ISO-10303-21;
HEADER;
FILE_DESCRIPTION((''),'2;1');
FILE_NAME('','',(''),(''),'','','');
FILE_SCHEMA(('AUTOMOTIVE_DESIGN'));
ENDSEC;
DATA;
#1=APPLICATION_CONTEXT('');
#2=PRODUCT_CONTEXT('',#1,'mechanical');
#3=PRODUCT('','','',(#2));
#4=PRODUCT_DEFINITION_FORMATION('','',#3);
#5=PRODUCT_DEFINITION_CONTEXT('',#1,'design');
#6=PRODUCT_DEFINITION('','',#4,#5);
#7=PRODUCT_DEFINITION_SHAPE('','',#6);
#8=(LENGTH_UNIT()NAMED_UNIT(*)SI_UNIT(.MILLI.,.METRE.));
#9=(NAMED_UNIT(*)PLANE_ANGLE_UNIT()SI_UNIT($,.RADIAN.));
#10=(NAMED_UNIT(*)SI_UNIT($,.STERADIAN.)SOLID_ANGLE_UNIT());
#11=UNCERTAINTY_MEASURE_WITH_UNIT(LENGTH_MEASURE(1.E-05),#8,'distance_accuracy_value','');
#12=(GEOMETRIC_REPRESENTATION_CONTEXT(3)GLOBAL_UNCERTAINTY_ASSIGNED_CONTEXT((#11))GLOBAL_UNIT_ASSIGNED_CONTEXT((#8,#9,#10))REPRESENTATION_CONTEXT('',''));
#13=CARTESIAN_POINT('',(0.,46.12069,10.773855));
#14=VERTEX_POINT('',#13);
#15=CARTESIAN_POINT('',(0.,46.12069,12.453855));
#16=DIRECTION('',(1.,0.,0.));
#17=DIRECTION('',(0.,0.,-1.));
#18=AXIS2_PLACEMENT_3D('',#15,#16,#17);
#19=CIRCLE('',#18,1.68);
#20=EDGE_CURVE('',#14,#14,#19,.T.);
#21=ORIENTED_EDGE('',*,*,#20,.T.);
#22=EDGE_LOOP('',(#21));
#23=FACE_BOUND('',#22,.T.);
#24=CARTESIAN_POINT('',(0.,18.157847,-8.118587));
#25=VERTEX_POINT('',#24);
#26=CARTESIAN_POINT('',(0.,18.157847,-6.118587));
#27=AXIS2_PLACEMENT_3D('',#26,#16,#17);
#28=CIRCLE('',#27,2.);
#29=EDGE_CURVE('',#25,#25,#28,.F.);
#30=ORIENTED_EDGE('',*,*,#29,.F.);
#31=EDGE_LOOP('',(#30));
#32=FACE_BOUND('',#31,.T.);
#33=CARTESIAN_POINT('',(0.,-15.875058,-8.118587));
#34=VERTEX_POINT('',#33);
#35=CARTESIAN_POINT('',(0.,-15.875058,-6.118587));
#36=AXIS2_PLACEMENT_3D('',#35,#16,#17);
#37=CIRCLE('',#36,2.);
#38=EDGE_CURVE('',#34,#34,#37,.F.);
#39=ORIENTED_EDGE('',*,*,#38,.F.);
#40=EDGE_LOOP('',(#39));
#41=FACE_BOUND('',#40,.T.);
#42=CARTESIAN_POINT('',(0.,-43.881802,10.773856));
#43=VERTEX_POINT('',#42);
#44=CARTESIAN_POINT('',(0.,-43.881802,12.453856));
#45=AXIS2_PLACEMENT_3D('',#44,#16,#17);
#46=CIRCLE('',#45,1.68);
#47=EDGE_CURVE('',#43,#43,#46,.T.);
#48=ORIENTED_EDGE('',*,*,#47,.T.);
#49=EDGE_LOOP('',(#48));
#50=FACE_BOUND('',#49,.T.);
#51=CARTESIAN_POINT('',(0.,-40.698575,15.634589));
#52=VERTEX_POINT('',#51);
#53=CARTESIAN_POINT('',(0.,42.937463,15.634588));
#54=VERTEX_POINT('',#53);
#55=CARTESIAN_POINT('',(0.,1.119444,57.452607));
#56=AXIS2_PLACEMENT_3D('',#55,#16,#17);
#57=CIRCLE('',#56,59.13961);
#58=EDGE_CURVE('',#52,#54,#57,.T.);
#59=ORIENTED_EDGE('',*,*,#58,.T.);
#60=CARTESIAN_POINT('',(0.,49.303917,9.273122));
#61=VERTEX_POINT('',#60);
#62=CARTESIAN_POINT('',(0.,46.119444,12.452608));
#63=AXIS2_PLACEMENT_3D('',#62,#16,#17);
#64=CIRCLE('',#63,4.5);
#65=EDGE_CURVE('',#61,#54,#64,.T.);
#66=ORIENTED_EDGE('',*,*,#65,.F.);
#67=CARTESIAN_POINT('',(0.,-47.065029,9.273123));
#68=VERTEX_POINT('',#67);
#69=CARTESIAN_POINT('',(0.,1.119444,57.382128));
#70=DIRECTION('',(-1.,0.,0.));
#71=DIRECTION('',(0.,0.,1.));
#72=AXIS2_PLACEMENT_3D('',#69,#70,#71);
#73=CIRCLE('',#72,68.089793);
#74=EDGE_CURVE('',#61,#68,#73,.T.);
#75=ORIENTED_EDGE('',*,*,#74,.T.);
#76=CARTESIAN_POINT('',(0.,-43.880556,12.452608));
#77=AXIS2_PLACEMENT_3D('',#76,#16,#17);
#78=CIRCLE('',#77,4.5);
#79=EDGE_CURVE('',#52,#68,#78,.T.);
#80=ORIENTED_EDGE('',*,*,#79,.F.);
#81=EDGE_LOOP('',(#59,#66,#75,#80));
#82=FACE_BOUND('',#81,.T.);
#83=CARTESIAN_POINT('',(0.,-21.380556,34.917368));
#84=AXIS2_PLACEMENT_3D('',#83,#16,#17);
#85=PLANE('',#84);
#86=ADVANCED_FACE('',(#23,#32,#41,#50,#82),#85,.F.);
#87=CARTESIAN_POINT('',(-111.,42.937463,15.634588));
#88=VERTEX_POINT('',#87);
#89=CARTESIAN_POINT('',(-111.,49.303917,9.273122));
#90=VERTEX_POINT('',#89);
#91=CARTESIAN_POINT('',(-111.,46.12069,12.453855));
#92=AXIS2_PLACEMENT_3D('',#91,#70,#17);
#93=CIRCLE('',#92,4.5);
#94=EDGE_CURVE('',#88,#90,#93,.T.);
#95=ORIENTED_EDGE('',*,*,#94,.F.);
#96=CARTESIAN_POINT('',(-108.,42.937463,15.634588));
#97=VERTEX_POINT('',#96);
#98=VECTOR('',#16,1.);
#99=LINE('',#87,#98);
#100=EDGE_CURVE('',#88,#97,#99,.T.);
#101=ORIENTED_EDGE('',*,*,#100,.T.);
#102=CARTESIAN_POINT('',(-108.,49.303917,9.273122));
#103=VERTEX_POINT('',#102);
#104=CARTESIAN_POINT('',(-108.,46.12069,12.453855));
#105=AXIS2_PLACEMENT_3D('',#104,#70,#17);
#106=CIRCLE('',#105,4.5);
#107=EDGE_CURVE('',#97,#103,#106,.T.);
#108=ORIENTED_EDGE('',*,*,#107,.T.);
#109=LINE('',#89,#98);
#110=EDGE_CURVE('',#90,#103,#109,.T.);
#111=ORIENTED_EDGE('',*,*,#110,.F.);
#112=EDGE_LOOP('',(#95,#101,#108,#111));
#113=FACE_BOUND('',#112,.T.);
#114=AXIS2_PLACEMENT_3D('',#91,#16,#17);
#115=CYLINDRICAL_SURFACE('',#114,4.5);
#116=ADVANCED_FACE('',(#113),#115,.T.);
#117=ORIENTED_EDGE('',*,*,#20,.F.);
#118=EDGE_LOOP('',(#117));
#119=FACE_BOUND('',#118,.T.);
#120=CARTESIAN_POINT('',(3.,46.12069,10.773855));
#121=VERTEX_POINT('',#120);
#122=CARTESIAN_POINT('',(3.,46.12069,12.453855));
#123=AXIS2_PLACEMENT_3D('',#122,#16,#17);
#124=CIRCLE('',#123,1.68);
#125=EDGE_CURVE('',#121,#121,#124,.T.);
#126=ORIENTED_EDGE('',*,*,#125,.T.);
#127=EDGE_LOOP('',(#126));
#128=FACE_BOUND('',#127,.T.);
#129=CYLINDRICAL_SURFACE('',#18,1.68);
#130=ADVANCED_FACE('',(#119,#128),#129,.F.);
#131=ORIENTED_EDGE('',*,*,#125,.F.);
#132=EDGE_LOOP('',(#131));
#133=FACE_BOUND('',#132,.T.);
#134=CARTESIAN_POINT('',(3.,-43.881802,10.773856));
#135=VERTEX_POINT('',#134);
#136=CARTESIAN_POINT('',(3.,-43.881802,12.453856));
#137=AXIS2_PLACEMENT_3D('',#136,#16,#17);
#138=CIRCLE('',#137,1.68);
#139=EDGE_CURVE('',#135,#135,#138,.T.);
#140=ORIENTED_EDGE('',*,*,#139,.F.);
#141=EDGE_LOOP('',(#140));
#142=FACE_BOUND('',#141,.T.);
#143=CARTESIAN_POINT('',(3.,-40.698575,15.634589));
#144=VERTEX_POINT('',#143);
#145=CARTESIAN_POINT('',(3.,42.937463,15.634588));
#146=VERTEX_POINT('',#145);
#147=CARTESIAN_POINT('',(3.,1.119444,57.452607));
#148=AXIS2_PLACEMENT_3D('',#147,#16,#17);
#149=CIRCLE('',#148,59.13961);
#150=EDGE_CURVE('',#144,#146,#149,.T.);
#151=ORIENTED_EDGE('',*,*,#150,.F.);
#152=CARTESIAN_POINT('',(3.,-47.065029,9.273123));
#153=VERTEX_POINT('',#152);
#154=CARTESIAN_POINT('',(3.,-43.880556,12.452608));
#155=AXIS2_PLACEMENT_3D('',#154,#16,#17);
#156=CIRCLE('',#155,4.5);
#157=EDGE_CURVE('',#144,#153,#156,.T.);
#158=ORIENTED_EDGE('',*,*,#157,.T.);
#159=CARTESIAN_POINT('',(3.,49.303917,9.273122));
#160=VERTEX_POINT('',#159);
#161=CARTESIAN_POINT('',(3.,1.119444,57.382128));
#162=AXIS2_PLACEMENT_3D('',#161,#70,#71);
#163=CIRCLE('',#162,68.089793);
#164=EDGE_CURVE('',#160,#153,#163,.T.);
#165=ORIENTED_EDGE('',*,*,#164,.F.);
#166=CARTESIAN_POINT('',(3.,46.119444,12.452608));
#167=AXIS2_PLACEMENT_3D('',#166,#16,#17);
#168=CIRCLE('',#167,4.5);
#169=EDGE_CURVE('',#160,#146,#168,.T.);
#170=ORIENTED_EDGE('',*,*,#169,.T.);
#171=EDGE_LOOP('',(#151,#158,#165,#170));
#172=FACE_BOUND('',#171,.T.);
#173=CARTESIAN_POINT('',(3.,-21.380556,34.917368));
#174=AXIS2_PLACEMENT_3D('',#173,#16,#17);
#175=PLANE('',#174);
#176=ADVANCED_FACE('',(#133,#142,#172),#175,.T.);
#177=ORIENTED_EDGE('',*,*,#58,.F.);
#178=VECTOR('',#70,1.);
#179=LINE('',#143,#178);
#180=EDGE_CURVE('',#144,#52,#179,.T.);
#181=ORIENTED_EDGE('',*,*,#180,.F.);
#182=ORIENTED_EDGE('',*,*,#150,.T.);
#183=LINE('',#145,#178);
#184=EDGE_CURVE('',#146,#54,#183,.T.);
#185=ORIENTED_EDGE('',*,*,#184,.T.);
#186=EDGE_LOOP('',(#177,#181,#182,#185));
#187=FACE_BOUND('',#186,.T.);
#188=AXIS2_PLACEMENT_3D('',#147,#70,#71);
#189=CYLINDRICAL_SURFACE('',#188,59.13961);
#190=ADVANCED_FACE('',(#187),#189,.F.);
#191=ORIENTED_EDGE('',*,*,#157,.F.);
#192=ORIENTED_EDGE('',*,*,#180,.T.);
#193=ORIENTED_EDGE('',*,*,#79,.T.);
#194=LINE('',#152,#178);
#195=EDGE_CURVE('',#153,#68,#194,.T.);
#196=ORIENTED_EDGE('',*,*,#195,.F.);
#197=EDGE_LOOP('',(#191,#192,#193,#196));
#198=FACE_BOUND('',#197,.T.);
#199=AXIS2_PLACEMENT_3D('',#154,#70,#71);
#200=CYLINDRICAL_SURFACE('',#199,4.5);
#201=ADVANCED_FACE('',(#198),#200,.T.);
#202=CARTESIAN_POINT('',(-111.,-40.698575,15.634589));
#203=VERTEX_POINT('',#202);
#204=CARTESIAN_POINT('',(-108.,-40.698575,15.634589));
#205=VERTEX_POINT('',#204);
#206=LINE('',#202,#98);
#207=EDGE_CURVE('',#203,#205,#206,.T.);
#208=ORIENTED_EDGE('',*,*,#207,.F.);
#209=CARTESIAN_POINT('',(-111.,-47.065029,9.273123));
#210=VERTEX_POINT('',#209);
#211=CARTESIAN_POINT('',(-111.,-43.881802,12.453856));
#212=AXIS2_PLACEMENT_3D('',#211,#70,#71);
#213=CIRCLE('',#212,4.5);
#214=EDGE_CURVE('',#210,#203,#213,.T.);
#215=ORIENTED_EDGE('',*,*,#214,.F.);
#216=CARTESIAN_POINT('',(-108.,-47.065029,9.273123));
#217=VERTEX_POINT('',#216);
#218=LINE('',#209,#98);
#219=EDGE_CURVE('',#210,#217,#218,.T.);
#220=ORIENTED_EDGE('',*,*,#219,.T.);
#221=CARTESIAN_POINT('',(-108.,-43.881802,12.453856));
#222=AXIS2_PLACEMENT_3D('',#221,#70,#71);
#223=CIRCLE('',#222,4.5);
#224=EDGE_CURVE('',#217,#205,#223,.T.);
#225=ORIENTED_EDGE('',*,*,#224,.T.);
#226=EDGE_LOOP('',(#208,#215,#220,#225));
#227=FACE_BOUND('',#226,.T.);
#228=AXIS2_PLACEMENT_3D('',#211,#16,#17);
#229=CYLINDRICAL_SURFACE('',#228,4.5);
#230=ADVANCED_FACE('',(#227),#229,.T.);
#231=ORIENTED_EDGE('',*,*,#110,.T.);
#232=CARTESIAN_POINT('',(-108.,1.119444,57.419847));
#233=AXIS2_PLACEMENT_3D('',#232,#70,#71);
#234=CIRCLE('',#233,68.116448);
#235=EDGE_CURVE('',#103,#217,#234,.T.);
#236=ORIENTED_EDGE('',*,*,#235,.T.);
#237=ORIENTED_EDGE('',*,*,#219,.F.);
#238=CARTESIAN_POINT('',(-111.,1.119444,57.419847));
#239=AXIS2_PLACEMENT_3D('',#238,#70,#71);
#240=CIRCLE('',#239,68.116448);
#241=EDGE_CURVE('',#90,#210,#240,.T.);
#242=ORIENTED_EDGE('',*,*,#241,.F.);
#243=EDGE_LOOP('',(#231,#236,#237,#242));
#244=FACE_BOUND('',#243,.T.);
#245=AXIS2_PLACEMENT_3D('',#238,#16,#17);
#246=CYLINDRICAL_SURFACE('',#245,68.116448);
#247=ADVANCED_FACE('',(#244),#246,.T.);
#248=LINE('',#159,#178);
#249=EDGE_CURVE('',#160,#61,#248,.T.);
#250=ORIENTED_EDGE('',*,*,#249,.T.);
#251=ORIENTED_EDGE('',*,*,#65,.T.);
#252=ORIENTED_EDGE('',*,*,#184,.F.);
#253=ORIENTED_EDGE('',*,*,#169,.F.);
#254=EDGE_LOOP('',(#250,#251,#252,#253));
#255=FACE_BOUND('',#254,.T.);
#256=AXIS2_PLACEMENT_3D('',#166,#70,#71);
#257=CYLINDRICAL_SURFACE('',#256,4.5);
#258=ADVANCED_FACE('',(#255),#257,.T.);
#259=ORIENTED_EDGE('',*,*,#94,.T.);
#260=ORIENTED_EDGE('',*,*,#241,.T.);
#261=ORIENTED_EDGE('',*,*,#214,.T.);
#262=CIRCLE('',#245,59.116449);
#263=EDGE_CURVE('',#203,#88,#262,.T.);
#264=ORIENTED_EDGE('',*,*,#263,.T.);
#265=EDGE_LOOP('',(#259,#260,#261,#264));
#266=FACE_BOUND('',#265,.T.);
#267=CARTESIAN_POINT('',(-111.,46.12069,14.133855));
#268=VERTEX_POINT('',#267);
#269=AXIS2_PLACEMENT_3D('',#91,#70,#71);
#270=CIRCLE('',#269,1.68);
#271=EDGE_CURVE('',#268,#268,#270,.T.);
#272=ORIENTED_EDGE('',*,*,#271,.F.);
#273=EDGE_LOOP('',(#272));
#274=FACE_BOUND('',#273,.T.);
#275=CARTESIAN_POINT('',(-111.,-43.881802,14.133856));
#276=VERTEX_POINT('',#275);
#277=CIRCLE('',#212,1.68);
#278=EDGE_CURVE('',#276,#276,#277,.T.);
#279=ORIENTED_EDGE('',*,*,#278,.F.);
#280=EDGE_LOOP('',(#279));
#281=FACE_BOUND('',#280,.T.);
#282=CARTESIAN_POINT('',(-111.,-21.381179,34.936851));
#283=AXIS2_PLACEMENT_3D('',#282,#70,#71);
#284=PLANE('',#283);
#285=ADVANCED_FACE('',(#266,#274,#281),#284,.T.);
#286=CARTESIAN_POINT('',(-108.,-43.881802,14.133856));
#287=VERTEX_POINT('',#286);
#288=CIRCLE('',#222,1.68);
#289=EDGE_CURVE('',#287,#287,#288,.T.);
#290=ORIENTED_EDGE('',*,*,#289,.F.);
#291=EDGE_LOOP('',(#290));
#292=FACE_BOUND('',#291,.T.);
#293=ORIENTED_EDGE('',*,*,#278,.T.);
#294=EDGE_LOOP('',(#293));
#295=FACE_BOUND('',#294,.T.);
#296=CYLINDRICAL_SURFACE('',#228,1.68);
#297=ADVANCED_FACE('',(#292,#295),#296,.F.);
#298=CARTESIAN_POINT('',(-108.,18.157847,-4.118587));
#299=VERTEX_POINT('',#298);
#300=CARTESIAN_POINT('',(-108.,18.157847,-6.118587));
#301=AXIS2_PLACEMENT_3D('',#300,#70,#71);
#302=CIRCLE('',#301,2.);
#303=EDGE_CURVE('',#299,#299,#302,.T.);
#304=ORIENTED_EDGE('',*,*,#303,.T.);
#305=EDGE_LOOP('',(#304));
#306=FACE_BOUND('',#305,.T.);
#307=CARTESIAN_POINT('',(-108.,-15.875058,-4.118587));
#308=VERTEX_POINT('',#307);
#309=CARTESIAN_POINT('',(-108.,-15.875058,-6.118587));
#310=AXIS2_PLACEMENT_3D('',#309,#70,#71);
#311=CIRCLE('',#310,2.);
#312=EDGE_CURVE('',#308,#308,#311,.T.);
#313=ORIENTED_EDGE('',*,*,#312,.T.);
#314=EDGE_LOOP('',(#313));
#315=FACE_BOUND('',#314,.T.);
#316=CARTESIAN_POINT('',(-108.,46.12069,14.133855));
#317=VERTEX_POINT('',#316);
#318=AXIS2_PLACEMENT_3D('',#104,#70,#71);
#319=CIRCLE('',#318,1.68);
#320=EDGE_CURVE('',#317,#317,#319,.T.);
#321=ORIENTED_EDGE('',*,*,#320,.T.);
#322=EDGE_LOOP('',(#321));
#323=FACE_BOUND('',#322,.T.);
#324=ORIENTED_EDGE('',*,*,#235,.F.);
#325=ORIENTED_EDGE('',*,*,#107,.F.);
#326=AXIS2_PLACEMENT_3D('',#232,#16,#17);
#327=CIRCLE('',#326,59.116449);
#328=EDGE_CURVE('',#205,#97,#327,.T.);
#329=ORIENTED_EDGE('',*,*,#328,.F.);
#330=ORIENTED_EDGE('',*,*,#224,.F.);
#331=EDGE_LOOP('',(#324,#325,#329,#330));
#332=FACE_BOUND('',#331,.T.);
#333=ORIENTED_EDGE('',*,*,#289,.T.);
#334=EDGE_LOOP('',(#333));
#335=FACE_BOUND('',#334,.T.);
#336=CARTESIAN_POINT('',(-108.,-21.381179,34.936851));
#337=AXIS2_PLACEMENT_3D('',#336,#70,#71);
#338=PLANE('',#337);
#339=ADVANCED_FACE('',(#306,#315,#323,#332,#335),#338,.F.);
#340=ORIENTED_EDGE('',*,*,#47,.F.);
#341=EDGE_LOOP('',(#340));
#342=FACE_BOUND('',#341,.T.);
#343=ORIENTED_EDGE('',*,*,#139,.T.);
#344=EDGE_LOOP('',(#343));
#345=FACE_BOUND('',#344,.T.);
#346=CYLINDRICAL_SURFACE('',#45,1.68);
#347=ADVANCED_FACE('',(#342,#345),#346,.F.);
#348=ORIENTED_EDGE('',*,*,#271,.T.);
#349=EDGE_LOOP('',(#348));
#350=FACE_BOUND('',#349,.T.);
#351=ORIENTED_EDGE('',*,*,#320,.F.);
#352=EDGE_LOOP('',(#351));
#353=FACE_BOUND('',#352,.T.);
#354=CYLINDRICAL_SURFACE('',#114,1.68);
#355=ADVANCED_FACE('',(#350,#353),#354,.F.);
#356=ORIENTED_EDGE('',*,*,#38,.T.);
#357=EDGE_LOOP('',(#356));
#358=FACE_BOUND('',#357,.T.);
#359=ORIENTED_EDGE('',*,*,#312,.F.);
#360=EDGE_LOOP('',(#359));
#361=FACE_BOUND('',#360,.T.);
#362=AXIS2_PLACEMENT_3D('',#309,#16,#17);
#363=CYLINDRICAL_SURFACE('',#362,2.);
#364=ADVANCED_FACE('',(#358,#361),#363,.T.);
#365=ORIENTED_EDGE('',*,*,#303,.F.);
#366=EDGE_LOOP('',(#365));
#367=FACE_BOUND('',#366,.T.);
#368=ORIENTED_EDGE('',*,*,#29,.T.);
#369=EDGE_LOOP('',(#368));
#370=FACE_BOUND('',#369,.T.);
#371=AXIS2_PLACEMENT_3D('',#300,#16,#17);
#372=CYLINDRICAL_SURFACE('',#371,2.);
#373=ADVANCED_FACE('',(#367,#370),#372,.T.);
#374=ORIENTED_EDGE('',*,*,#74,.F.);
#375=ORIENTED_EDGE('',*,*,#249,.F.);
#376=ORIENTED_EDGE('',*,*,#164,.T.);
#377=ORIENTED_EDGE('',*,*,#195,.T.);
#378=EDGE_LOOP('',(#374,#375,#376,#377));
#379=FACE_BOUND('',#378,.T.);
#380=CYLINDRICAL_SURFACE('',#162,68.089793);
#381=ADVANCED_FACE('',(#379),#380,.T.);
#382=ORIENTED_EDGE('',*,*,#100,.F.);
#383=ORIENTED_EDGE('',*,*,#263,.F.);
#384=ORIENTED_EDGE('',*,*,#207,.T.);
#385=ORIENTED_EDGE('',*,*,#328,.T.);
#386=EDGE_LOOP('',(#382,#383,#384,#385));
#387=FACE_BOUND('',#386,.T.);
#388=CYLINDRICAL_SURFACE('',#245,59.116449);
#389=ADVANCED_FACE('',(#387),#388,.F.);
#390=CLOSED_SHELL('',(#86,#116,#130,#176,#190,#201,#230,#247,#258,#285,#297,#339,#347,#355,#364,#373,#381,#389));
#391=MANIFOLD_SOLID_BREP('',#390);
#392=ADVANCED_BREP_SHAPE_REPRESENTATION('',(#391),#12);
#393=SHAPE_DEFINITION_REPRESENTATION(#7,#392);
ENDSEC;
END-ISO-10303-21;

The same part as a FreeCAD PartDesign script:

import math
import FreeCAD as App
import Part
import Sketcher
from FreeCAD import Vector

doc = App.newDocument("Part")
params = doc.addObject("Spreadsheet::Sheet", "Params")
for row, (alias, value) in enumerate([
    ("sketch1_radius", "4.5 mm"),
    ("pad1_length", "3 mm"),
    ("sketch2_diameter", "3.36 mm"),
    ("sketch3_diameter", "4 mm"),
    ("pad2_length", "108 mm"),
    ("sketch4_radius", "4.5 mm"),
    ("sketch4_diameter", "3.36 mm"),
    ("pad3_length", "3 mm"),
], start=1):
    params.set(f"A{row}", alias)
    params.set(f"B{row}", "=" + value)
    params.setAlias(f"B{row}", alias)

body = doc.addObject("PartDesign::Body", "Body")

# Sketch on YZ plane
sketch1 = body.newObject("Sketcher::SketchObject", "Sketch")
sketch1.AttachmentSupport = (doc.getObject("YZ_Plane"), [""])
sketch1.MapMode = "FlatFace"
sketch1.addGeometry(Part.ArcOfCircle(Part.Circle(Vector(-43.9, 12.5, 0), Vector(0, 0, 1), 4.5), math.radians(45), math.radians(225)), False)
sketch1.addGeometry(Part.ArcOfCircle(Part.Circle(Vector(1.1, 57.4, 0), Vector(0, 0, 1), 68.1), math.radians(-135), math.radians(-45)), False)
sketch1.addGeometry(Part.ArcOfCircle(Part.Circle(Vector(46.1, 12.5, 0), Vector(0, 0, 1), 4.5), math.radians(-45), math.radians(135)), False)
sketch1.addGeometry(Part.ArcOfCircle(Part.Circle(Vector(1.1, 57.5, 0), Vector(0, 0, 1), 59.1), math.radians(-135), math.radians(-45)), False)
sketch1.addConstraint(Sketcher.Constraint("Tangent", 0, 2, 1, 1))
sketch1.addConstraint(Sketcher.Constraint("Tangent", 1, 2, 2, 1))
sketch1.addConstraint(Sketcher.Constraint("Tangent", 2, 2, 3, 2))
sketch1.addConstraint(Sketcher.Constraint("Tangent", 3, 1, 0, 1))
sketch1.addConstraint(Sketcher.Constraint("Equal", 0, 2))
sketch1.addConstraint(Sketcher.Constraint("Horizontal", 0, 3, 2, 3))
sketch1.addConstraint(Sketcher.Constraint("Radius", 0, 4.5))
sketch1.addConstraint(Sketcher.Constraint("DistanceX", 0, 3, 1, 3, 45.0))
sketch1.addConstraint(Sketcher.Constraint("DistanceY", 2, 3, 3, 3, 45.0))
sketch1.addConstraint(Sketcher.Constraint("Radius", 1, 68.089793))
sketch1.addConstraint(Sketcher.Constraint("DistanceY", -1, 1, 0, 3, 12.452608))
sketch1.addConstraint(Sketcher.Constraint("DistanceX", 0, 2, -1, 1, 47.065029))
sketch1.setExpression("Constraints[6]", "Params.sketch1_radius")
pad1 = body.newObject("PartDesign::Pad", "Pad")
pad1.Profile = sketch1
pad1.setExpression("Length", "Params.pad1_length")

# Sketch on YZ plane
sketch2 = body.newObject("Sketcher::SketchObject", "Sketch001")
sketch2.AttachmentSupport = (doc.getObject("YZ_Plane"), [""])
sketch2.MapMode = "FlatFace"
sketch2.AttachmentOffset = App.Placement(Vector(0, 0, 3), App.Rotation())
sketch2.addGeometry(Part.Circle(Vector(46.1, 12.5, 0), Vector(0, 0, 1), 1.7), False)
sketch2.addGeometry(Part.Circle(Vector(-43.9, 12.5, 0), Vector(0, 0, 1), 1.7), False)
sketch2.addConstraint(Sketcher.Constraint("Equal", 0, 1))
sketch2.addConstraint(Sketcher.Constraint("Horizontal", 0, 3, 1, 3))
sketch2.addConstraint(Sketcher.Constraint("Diameter", 0, 3.36))
sketch2.addConstraint(Sketcher.Constraint("DistanceX", -1, 1, 0, 3, 46.12069))
sketch2.addConstraint(Sketcher.Constraint("DistanceY", -1, 1, 0, 3, 12.453855))
sketch2.addConstraint(Sketcher.Constraint("DistanceX", 1, 3, -1, 1, 43.881802))
sketch2.setExpression("Constraints[2]", "Params.sketch2_diameter")
pocket1 = body.newObject("PartDesign::Pocket", "Pocket")
pocket1.Profile = sketch2
pocket1.Type = "ThroughAll"

# Sketch on YZ plane
sketch3 = body.newObject("Sketcher::SketchObject", "Sketch002")
sketch3.AttachmentSupport = (doc.getObject("YZ_Plane"), [""])
sketch3.MapMode = "FlatFace"
sketch3.addGeometry(Part.Circle(Vector(18.2, -6.1, 0), Vector(0, 0, 1), 2), False)
sketch3.addGeometry(Part.Circle(Vector(-15.9, -6.1, 0), Vector(0, 0, 1), 2), False)
sketch3.addConstraint(Sketcher.Constraint("Equal", 0, 1))
sketch3.addConstraint(Sketcher.Constraint("Horizontal", 0, 3, 1, 3))
sketch3.addConstraint(Sketcher.Constraint("Diameter", 0, 4.0))
sketch3.addConstraint(Sketcher.Constraint("DistanceX", -1, 1, 0, 3, 18.157847))
sketch3.addConstraint(Sketcher.Constraint("DistanceY", 0, 3, -1, 1, 6.118587))
sketch3.addConstraint(Sketcher.Constraint("DistanceX", 1, 3, -1, 1, 15.875058))
sketch3.setExpression("Constraints[2]", "Params.sketch3_diameter")
pad2 = body.newObject("PartDesign::Pad", "Pad001")
pad2.Profile = sketch3
pad2.setExpression("Length", "Params.pad2_length")
pad2.Reversed = True

# Sketch on YZ plane
sketch4 = body.newObject("Sketcher::SketchObject", "Sketch003")
sketch4.AttachmentSupport = (doc.getObject("YZ_Plane"), [""])
sketch4.MapMode = "FlatFace"
sketch4.AttachmentOffset = App.Placement(Vector(0, 0, -108), App.Rotation())
sketch4.addGeometry(Part.ArcOfCircle(Part.Circle(Vector(46.1, 12.5, 0), Vector(0, 0, 1), 4.5), math.radians(-45), math.radians(135)), False)
sketch4.addGeometry(Part.ArcOfCircle(Part.Circle(Vector(1.1, 57.4, 0), Vector(0, 0, 1), 68.1), math.radians(-135), math.radians(-45)), False)
sketch4.addGeometry(Part.ArcOfCircle(Part.Circle(Vector(-43.9, 12.5, 0), Vector(0, 0, 1), 4.5), math.radians(45), math.radians(225)), False)
sketch4.addGeometry(Part.ArcOfCircle(Part.Circle(Vector(1.1, 57.4, 0), Vector(0, 0, 1), 59.1), math.radians(-135), math.radians(-45)), False)
sketch4.addGeometry(Part.Circle(Vector(-43.9, 12.5, 0), Vector(0, 0, 1), 1.7), False)
sketch4.addGeometry(Part.Circle(Vector(46.1, 12.5, 0), Vector(0, 0, 1), 1.7), False)
sketch4.addConstraint(Sketcher.Constraint("Tangent", 0, 1, 1, 2))
sketch4.addConstraint(Sketcher.Constraint("Tangent", 1, 1, 2, 2))
sketch4.addConstraint(Sketcher.Constraint("Tangent", 2, 1, 3, 1))
sketch4.addConstraint(Sketcher.Constraint("Tangent", 3, 2, 0, 2))
sketch4.addConstraint(Sketcher.Constraint("Coincident", 3, 3, 1, 3))
sketch4.addConstraint(Sketcher.Constraint("Coincident", 4, 3, 2, 3))
sketch4.addConstraint(Sketcher.Constraint("Coincident", 5, 3, 0, 3))
sketch4.addConstraint(Sketcher.Constraint("Equal", 4, 5))
sketch4.addConstraint(Sketcher.Constraint("Horizontal", 0, 3, 2, 3))
sketch4.addConstraint(Sketcher.Constraint("Radius", 0, 4.5))
sketch4.addConstraint(Sketcher.Constraint("Diameter", 4, 3.36))
sketch4.addConstraint(Sketcher.Constraint("Radius", 1, 68.116448))
sketch4.addConstraint(Sketcher.Constraint("DistanceX", -1, 1, 0, 3, 46.12069))
sketch4.addConstraint(Sketcher.Constraint("DistanceY", -1, 1, 0, 1, 9.273122))
sketch4.addConstraint(Sketcher.Constraint("DistanceX", 1, 1, -1, 1, 47.065029))
sketch4.setExpression("Constraints[9]", "Params.sketch4_radius")
sketch4.setExpression("Constraints[10]", "Params.sketch4_diameter")
pad3 = body.newObject("PartDesign::Pad", "Pad002")
pad3.Profile = sketch4
pad3.setExpression("Length", "Params.pad3_length")
pad3.Reversed = True

doc.recompute()
